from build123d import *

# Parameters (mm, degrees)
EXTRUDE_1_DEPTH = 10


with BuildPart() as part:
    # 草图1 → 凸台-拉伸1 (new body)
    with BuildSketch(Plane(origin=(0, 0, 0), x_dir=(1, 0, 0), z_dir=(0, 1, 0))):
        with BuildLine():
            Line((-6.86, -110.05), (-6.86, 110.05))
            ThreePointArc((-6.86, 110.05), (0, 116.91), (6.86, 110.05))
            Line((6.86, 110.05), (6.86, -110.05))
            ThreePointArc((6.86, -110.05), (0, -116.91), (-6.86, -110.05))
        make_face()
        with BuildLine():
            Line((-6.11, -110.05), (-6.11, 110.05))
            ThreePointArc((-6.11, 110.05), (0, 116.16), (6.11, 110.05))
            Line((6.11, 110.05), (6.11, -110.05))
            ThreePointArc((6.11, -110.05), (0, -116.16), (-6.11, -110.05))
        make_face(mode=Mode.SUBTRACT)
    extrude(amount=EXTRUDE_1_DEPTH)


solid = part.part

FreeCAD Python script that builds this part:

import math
import FreeCAD as App
import Part
import Sketcher

V = App.Vector

doc = App.newDocument("Part")
body = doc.addObject("PartDesign::Body", "Body")

sketch1 = body.newObject("Sketcher::SketchObject", "Sketch")
sketch1.AttachmentSupport = (doc.getObject("XZ_Plane"), [""])
sketch1.MapMode = "FlatFace"
sketch1.addGeometry([
    Part.LineSegment(V(-6.86, -110.05, 0), V(-6.86, 110.05, 0)),
    Part.ArcOfCircle(Part.Circle(V(0, 110.05, 0), V(0, 0, 1), 6.86), math.radians(0), math.radians(180)),
    Part.LineSegment(V(6.86, 110.05, 0), V(6.86, -110.05, 0)),
    Part.ArcOfCircle(Part.Circle(V(0, -110.05, 0), V(0, 0, 1), 6.86), math.radians(180), math.radians(360)),
    Part.LineSegment(V(-6.11, 110.05, 0), V(-6.11, -110.05, 0)),
    Part.ArcOfCircle(Part.Circle(V(0, -110.05, 0), V(0, 0, 1), 6.11), math.radians(180), math.radians(360)),
    Part.LineSegment(V(6.11, -110.05, 0), V(6.11, 110.05, 0)),
    Part.ArcOfCircle(Part.Circle(V(0, 110.05, 0), V(0, 0, 1), 6.11), math.radians(0), math.radians(180)),
], False)
sketch1.addConstraint([
    Sketcher.Constraint("Tangent", 0, 2, 1, 2),
    Sketcher.Constraint("Tangent", 1, 1, 2, 1),
    Sketcher.Constraint("Tangent", 2, 2, 3, 2),
    Sketcher.Constraint("Tangent", 3, 1, 0, 1),
    Sketcher.Constraint("Tangent", 4, 2, 5, 1),
    Sketcher.Constraint("Tangent", 5, 2, 6, 1),
    Sketcher.Constraint("Tangent", 6, 2, 7, 1),
    Sketcher.Constraint("Tangent", 7, 2, 4, 1),
    Sketcher.Constraint("Vertical", 0),
    Sketcher.Constraint("Vertical", 2),
    Sketcher.Constraint("Vertical", 4),
    Sketcher.Constraint("Vertical", 6),
    Sketcher.Constraint("Coincident", 5, 3, 3, 3),
    Sketcher.Constraint("Symmetric", 1, 3, 3, 3, -1, 1),
    Sketcher.Constraint("Horizontal", 7, 3, 0, 2),
    Sketcher.Constraint("Radius", 1, 6.86),
    Sketcher.Constraint("Radius", 5, 6.11),
    Sketcher.Constraint("DistanceY", 0, 1, 0, 2, 220.1),
])
pad1 = body.newObject("PartDesign::Pad", "Pad")
pad1.Profile = sketch1
pad1.Length = 10
pad1.Reversed = True

doc.recompute()
